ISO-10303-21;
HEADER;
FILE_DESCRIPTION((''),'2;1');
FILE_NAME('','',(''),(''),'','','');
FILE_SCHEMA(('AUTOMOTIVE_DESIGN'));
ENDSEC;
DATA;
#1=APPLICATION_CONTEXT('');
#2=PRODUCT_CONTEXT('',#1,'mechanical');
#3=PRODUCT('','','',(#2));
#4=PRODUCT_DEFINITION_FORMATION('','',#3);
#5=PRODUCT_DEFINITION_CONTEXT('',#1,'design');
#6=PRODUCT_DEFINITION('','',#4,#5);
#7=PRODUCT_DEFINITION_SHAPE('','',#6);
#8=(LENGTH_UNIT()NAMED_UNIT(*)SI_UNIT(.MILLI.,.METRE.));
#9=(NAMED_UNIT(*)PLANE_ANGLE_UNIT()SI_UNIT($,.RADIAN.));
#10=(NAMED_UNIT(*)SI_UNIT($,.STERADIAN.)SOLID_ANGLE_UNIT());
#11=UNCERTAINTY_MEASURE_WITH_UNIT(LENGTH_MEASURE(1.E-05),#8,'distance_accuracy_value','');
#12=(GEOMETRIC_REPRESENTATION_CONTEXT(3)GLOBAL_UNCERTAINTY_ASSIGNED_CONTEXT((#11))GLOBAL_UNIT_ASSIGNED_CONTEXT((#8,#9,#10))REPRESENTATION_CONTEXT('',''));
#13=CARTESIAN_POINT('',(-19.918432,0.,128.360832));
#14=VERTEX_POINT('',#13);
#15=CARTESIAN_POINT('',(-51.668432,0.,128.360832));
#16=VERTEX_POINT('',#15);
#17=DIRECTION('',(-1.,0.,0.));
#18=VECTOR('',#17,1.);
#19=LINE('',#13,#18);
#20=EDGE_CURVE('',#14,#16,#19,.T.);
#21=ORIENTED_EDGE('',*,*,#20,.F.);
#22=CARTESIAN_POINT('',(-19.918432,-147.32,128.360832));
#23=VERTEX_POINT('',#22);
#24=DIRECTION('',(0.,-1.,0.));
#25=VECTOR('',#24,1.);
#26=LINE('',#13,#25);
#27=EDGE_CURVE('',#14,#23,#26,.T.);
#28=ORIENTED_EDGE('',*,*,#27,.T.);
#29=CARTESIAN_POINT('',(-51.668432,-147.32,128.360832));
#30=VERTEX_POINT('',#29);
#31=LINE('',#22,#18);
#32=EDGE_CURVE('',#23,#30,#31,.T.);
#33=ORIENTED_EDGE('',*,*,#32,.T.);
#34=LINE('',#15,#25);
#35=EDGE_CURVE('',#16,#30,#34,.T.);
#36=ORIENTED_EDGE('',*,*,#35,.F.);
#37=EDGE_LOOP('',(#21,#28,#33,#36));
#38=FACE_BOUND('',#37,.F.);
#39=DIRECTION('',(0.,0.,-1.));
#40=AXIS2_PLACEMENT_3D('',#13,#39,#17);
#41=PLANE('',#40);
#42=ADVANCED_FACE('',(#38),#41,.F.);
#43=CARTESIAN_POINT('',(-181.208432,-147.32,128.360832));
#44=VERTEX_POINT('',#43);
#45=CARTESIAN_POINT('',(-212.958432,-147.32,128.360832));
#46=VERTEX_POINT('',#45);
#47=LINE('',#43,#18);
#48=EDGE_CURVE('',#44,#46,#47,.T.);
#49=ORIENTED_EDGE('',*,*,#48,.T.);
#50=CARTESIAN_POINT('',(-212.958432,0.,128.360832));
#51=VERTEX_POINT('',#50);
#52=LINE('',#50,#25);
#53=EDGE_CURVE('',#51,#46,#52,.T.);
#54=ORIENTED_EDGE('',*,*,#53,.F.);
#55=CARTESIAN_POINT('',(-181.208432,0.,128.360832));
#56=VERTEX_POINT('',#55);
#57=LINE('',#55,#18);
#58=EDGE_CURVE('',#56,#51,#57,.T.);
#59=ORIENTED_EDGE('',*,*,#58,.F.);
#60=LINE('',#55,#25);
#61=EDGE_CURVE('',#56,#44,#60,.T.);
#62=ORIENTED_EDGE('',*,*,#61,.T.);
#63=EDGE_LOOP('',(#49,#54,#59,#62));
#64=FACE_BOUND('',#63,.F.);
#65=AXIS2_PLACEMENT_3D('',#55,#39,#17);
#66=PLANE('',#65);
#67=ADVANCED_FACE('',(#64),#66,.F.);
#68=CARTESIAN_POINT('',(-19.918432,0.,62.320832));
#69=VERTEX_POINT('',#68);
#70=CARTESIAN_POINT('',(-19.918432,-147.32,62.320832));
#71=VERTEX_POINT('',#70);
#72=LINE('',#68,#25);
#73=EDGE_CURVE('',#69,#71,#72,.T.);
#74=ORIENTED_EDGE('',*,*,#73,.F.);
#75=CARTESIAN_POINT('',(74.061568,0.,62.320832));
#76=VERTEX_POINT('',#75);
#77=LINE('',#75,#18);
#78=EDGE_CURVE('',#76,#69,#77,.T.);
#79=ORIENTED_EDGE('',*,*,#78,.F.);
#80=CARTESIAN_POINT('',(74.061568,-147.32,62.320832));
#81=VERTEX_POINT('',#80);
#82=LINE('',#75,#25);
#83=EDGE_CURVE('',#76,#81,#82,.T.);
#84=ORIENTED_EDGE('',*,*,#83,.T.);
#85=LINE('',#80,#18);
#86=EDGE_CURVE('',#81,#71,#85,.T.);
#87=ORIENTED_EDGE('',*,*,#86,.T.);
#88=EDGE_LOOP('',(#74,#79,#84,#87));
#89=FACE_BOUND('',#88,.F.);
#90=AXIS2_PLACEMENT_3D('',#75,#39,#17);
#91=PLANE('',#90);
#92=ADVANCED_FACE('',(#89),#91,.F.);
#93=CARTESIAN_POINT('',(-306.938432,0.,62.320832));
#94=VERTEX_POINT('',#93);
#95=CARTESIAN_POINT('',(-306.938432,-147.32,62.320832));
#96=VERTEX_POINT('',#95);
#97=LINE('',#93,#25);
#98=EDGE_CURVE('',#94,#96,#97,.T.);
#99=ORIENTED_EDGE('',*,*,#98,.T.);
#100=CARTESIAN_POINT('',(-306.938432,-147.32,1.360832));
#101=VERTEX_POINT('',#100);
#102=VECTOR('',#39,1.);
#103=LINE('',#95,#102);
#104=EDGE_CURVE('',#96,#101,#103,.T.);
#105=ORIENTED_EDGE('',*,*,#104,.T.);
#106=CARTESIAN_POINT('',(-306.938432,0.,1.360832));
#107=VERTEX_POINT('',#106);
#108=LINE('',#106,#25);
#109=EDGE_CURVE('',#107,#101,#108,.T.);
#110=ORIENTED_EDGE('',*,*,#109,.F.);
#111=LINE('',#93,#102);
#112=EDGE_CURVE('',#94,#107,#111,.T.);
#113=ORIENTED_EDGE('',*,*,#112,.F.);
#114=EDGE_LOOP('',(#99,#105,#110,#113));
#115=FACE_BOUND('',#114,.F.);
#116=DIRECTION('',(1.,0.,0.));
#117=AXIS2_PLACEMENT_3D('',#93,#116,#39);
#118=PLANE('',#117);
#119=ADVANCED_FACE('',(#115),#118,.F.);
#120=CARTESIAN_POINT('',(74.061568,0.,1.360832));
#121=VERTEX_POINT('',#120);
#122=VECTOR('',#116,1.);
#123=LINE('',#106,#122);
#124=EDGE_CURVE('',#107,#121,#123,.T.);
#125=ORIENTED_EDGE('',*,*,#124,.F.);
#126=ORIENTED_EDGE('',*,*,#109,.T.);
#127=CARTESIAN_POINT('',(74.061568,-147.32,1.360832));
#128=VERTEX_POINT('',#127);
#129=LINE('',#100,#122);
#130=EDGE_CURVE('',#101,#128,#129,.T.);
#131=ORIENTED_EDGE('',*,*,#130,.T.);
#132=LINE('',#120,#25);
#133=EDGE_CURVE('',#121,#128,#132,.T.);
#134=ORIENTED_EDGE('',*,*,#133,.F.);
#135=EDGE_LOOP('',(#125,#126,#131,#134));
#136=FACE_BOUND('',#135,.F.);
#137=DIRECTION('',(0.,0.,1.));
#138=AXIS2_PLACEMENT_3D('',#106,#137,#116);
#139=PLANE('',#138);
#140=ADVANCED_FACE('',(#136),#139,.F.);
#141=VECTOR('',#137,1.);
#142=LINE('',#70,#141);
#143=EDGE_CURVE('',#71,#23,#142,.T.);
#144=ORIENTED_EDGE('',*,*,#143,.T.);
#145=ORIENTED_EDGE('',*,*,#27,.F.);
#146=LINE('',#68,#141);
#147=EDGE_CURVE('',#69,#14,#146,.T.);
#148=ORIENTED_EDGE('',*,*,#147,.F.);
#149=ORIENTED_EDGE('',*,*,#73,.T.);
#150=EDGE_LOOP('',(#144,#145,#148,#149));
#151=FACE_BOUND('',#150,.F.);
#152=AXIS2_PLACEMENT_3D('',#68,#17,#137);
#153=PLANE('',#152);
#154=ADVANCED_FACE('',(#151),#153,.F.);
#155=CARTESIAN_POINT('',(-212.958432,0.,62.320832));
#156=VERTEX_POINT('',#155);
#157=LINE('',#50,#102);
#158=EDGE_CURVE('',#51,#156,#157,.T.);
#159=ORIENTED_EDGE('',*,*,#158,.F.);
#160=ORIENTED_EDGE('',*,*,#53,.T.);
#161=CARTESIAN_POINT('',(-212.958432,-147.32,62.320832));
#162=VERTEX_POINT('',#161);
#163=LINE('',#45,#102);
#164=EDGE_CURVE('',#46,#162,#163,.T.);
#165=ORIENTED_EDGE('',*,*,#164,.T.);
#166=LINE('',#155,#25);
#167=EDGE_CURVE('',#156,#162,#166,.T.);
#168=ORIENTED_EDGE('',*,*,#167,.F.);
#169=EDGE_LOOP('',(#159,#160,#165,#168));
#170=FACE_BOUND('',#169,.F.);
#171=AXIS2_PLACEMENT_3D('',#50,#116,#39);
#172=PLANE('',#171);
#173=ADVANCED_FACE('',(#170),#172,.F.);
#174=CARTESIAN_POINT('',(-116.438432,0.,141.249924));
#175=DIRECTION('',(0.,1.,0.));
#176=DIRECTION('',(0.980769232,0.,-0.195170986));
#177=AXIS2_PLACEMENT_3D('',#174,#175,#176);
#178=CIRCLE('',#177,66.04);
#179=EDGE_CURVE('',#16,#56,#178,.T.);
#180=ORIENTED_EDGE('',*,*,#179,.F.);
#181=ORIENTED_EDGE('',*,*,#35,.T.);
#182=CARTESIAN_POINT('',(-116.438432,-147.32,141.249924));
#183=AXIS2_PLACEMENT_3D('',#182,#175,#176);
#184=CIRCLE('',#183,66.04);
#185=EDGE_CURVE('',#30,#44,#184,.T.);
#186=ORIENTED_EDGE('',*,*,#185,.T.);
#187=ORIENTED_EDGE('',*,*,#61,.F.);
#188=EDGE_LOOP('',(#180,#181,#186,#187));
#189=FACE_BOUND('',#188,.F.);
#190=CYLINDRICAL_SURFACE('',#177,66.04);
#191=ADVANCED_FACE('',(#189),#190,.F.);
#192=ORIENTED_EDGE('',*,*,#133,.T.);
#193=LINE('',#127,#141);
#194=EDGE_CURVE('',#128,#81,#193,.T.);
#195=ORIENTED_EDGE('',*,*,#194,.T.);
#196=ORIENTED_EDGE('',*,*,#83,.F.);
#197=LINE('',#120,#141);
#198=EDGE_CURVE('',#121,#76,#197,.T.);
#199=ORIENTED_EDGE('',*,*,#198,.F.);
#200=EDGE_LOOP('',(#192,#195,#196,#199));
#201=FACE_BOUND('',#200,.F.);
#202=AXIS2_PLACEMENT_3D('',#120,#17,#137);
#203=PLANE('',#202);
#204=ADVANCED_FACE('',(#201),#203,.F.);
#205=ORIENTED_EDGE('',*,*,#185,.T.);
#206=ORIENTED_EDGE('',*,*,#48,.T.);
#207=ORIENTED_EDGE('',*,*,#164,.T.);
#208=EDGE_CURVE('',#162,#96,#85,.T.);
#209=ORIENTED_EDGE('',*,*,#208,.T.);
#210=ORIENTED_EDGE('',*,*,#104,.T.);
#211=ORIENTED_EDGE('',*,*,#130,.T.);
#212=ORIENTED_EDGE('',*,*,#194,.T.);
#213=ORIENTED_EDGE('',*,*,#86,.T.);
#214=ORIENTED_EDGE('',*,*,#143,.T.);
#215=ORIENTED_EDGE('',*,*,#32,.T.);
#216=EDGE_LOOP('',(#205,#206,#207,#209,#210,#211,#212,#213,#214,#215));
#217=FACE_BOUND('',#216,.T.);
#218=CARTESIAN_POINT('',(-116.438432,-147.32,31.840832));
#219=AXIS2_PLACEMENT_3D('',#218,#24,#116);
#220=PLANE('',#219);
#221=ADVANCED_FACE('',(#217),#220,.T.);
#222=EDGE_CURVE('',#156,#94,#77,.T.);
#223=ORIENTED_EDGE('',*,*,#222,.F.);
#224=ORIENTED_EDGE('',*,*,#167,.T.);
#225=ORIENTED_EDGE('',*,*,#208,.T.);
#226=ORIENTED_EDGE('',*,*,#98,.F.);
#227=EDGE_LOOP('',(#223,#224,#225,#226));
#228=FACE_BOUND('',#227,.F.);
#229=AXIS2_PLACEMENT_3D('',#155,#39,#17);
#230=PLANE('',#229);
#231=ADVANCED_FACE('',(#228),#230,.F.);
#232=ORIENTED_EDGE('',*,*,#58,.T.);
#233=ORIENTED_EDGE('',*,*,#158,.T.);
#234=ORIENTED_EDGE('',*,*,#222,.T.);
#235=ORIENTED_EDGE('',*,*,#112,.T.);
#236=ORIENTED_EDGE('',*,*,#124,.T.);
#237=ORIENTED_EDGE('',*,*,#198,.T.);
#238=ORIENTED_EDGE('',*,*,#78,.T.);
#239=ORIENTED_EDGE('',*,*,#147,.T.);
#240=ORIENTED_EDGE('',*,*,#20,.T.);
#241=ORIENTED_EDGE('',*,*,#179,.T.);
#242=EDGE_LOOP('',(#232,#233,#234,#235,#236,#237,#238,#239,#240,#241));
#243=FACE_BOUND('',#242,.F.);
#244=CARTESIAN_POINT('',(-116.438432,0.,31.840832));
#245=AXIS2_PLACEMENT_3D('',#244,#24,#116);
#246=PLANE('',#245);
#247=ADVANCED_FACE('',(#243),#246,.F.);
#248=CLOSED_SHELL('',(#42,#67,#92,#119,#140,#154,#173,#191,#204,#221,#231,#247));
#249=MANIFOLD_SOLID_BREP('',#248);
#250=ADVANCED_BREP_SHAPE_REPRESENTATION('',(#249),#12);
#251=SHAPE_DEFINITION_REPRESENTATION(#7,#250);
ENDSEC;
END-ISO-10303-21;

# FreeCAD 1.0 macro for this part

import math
import FreeCAD as App
import Part
import Sketcher
from FreeCAD import Vector
Q = App.Units.Quantity

doc = App.newDocument("Part")
body = doc.addObject("PartDesign::Body", "Body")

# Sketch on XZ plane
sketch1 = body.newObject("Sketcher::SketchObject", "Sketch")
sketch1.AttachmentSupport = (doc.getObject("XZ_Plane"), [""])
sketch1.MapMode = "FlatFace"
sketch1.addGeometry(Part.LineSegment(Vector(-307, 62, 0), Vector(-307, 1, 0)), False)
sketch1.addGeometry(Part.LineSegment(Vector(-307, 1, 0), Vector(74, 1, 0)), False)
sketch1.addGeometry(Part.LineSegment(Vector(74, 1, 0), Vector(74, 62, 0)), False)
sketch1.addGeometry(Part.LineSegment(Vector(74, 62, 0), Vector(-20, 62, 0)), False)
sketch1.addGeometry(Part.LineSegment(Vector(-20, 62, 0), Vector(-20, 128, 0)), False)
sketch1.addGeometry(Part.LineSegment(Vector(-20, 128, 0), Vector(-52, 128, 0)), False)
sketch1.addGeometry(Part.ArcOfCircle(Part.Circle(Vector(-116, 141, 0), Vector(0, 0, 1), 66), math.radians(-169), math.radians(-11)), False)
sketch1.addGeometry(Part.LineSegment(Vector(-181, 128, 0), Vector(-213, 128, 0)), False)
sketch1.addGeometry(Part.LineSegment(Vector(-213, 128, 0), Vector(-213, 62, 0)), False)
sketch1.addGeometry(Part.LineSegment(Vector(-213, 62, 0), Vector(-307, 62, 0)), False)
sketch1.addConstraint(Sketcher.Constraint("Coincident", 0, 2, 1, 1))
sketch1.addConstraint(Sketcher.Constraint("Coincident", 1, 2, 2, 1))
sketch1.addConstraint(Sketcher.Constraint("Coincident", 2, 2, 3, 1))
sketch1.addConstraint(Sketcher.Constraint("Coincident", 3, 2, 4, 1))
sketch1.addConstraint(Sketcher.Constraint("Coincident", 4, 2, 5, 1))
sketch1.addConstraint(Sketcher.Constraint("Coincident", 5, 2, 6, 2))
sketch1.addConstraint(Sketcher.Constraint("Coincident", 6, 1, 7, 1))
sketch1.addConstraint(Sketcher.Constraint("Coincident", 7, 2, 8, 1))
sketch1.addConstraint(Sketcher.Constraint("Coincident", 8, 2, 9, 1))
sketch1.addConstraint(Sketcher.Constraint("Coincident", 9, 2, 0, 1))
sketch1.addConstraint(Sketcher.Constraint("Vertical", 0))
sketch1.addConstraint(Sketcher.Constraint("Horizontal", 1))
sketch1.addConstraint(Sketcher.Constraint("Vertical", 2))
sketch1.addConstraint(Sketcher.Constraint("Horizontal", 3))
sketch1.addConstraint(Sketcher.Constraint("Vertical", 4))
sketch1.addConstraint(Sketcher.Constraint("Horizontal", 5))
sketch1.addConstraint(Sketcher.Constraint("Horizontal", 7))
sketch1.addConstraint(Sketcher.Constraint("Vertical", 8))
sketch1.addConstraint(Sketcher.Constraint("Horizontal", 9))
sketch1.addConstraint(Sketcher.Constraint("Horizontal", 5, 2, 6, 1))
sketch1.addConstraint(Sketcher.Constraint("Horizontal", 3, 2, 8, 2))
sketch1.addConstraint(Sketcher.Constraint("Equal", 5, 7))
sketch1.addConstraint(Sketcher.Constraint("Equal", 3, 9))
sketch1.addConstraint(Sketcher.Constraint("Radius", 6, Q("2.6 in")))
sketch1.addConstraint(Sketcher.Constraint("DistanceX", 1, 1, 1, 2, Q("15 in")))
sketch1.addConstraint(Sketcher.Constraint("DistanceX", 3, 2, 3, 1, Q("3.7 in")))
sketch1.addConstraint(Sketcher.Constraint("DistanceY", 0, 2, 0, 1, Q("2.4 in")))
sketch1.addConstraint(Sketcher.Constraint("DistanceY", 4, 1, 4, 2, Q("2.6 in")))
sketch1.addConstraint(Sketcher.Constraint("DistanceX", 5, 2, 5, 1, Q("1.25 in")))
sketch1.addConstraint(Sketcher.Constraint("DistanceX", 0, 2, -1, 1, Q("306.938432 mm")))
sketch1.addConstraint(Sketcher.Constraint("DistanceY", -1, 1, 4, 2, Q("128.360832 mm")))
pad1 = body.newObject("PartDesign::Pad", "Pad")
pad1.Profile = sketch1
pad1.Length = Q("5.8 in")

doc.recompute()
